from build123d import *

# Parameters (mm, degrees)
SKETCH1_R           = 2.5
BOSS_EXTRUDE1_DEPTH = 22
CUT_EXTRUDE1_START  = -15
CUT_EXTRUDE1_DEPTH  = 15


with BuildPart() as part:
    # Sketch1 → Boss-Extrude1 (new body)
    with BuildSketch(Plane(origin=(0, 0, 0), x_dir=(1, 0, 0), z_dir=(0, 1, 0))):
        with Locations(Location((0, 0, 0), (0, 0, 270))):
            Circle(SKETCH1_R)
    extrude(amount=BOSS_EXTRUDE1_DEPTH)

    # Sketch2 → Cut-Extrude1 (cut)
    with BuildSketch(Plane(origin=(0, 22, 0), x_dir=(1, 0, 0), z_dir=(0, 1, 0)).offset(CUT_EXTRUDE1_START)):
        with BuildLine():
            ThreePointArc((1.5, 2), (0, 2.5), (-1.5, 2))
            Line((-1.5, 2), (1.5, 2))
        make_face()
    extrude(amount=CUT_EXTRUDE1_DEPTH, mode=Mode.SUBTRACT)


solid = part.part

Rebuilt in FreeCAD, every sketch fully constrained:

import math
import FreeCAD as App
import Part
import Sketcher
Q = App.Units.Quantity

doc = App.newDocument("Part")
body = doc.addObject("PartDesign::Body", "Body")

# Sketch on XZ plane
sketch1 = body.newObject("Sketcher::SketchObject", "Sketch")
sketch1.AttachmentSupport = (doc.getObject("XZ_Plane"), [""])
sketch1.MapMode = "FlatFace"
sketch1.addGeometry(Part.Circle(App.Vector(0, 0, 0), App.Vector(0, 0, 1), 2.5), False)
sketch1.addConstraint(Sketcher.Constraint("Coincident", 0, 3, -1, 1))
sketch1.addConstraint(Sketcher.Constraint("Diameter", 0, Q("5 mm")))
pad1 = body.newObject("PartDesign::Pad", "Pad")
pad1.Profile = sketch1
pad1.Length = 22
pad1.Reversed = True

# Sketch on XZ plane
sketch2 = body.newObject("Sketcher::SketchObject", "Sketch001")
sketch2.AttachmentSupport = (doc.getObject("XZ_Plane"), [""])
sketch2.MapMode = "FlatFace"
sketch2.AttachmentOffset = App.Placement(App.Vector(0, 0, -7), App.Rotation())
sketch2.addGeometry(Part.ArcOfCircle(Part.Circle(App.Vector(0, 0, 0), App.Vector(0, 0, 1), 2.5), math.radians(-127), math.radians(-53)), False)
sketch2.addGeometry(Part.LineSegment(App.Vector(-1.5, -2, 0), App.Vector(1.5, -2, 0)), False)
sketch2.addConstraint(Sketcher.Constraint("Coincident", 0, 1, 1, 1))
sketch2.addConstraint(Sketcher.Constraint("Coincident", 1, 2, 0, 2))
sketch2.addConstraint(Sketcher.Constraint("Horizontal", 1))
sketch2.addConstraint(Sketcher.Constraint("Coincident", 0, 3, -1, 1))
sketch2.addConstraint(Sketcher.Constraint("Radius", 0, Q("2.5 mm")))
sketch2.addConstraint(Sketcher.Constraint("DistanceX", 1, 1, 1, 2, Q("3 mm")))
pocket1 = body.newObject("PartDesign::Pocket", "Pocket")
pocket1.Profile = sketch2
pocket1.Length = 15

doc.recompute()
